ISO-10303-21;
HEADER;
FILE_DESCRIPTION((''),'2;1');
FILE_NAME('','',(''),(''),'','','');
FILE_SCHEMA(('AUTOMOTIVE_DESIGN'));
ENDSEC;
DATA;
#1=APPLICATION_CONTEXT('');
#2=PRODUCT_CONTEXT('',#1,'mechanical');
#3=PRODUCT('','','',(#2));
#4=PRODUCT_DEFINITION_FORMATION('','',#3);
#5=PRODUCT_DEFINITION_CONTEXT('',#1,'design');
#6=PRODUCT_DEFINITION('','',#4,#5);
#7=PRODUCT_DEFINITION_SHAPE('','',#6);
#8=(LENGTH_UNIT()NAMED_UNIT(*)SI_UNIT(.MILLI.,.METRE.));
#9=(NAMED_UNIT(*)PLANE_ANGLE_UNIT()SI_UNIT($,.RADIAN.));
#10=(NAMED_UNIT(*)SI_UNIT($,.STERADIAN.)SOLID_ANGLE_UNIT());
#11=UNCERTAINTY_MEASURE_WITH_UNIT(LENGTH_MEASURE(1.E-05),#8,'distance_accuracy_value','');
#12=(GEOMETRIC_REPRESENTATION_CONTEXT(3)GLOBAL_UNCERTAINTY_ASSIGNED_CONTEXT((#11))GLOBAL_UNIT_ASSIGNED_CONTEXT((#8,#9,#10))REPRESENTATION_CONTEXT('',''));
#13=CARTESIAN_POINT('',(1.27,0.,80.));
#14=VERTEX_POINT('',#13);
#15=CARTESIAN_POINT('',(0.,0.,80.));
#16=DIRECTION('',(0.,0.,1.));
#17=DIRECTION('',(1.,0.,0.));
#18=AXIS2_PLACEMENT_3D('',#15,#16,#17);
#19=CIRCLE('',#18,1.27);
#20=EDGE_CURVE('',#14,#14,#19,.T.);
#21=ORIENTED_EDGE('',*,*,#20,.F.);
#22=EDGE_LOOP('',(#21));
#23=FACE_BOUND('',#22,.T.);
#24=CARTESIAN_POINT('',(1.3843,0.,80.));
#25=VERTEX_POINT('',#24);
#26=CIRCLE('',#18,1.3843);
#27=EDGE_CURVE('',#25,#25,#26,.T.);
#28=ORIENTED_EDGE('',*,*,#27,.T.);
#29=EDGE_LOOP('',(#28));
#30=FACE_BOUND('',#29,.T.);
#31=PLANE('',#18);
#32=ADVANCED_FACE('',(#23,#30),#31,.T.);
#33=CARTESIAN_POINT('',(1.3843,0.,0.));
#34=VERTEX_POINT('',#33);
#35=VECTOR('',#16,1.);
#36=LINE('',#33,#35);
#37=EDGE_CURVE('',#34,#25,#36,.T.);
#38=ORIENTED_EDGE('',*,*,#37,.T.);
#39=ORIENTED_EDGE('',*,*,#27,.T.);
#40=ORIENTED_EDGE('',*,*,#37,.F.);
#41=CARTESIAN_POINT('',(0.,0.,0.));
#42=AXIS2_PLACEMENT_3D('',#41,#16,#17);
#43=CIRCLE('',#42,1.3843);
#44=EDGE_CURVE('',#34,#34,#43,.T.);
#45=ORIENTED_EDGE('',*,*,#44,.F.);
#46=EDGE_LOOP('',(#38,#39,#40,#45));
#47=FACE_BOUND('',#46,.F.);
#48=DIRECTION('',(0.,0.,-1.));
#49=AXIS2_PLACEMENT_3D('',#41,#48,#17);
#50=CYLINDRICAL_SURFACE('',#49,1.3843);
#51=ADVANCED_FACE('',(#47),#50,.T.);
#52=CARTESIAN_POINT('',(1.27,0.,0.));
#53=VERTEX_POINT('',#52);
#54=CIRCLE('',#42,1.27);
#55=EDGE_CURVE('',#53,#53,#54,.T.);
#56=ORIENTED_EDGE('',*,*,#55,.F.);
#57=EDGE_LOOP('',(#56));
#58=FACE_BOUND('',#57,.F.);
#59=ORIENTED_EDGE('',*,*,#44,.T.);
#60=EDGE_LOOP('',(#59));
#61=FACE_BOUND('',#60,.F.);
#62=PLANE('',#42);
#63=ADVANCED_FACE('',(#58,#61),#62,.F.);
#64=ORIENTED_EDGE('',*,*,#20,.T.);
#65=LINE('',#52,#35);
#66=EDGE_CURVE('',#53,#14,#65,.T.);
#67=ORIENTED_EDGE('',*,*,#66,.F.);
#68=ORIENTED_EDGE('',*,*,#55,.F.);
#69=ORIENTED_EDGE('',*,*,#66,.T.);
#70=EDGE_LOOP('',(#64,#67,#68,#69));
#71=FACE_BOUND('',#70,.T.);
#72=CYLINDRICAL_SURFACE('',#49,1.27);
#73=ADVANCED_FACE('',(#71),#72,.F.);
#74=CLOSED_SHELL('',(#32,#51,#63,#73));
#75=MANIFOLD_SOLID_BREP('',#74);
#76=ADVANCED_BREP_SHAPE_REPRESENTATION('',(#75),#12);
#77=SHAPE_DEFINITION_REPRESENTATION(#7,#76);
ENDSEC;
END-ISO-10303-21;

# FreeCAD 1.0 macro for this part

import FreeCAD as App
import Part
import Sketcher
from FreeCAD import Vector
Q = App.Units.Quantity

doc = App.newDocument("Part")
body = doc.addObject("PartDesign::Body", "Body")

sketch1 = body.newObject("Sketcher::SketchObject", "Sketch")
sketch1.AttachmentSupport = (doc.getObject("XY_Plane"), [""])
sketch1.MapMode = "FlatFace"
sketch1.addGeometry([
    Part.Circle(Vector(0, 0, 0), Vector(0, 0, 1), 1.4),
    Part.Circle(Vector(0, 0, 0), Vector(0, 0, 1), 1.3),
], False)
sketch1.addConstraint([
    Sketcher.Constraint("Coincident", 0, 3, -1, 1),
    Sketcher.Constraint("Coincident", 1, 3, -1, 1),
    Sketcher.Constraint("Diameter", 1, Q("0.1 in")),
    Sketcher.Constraint("Diameter", 0, Q("0.109 in")),
])
pad1 = body.newObject("PartDesign::Pad", "Pad")
pad1.Profile = sketch1
pad1.Length = Q("3.1496063 in")

doc.recompute()
